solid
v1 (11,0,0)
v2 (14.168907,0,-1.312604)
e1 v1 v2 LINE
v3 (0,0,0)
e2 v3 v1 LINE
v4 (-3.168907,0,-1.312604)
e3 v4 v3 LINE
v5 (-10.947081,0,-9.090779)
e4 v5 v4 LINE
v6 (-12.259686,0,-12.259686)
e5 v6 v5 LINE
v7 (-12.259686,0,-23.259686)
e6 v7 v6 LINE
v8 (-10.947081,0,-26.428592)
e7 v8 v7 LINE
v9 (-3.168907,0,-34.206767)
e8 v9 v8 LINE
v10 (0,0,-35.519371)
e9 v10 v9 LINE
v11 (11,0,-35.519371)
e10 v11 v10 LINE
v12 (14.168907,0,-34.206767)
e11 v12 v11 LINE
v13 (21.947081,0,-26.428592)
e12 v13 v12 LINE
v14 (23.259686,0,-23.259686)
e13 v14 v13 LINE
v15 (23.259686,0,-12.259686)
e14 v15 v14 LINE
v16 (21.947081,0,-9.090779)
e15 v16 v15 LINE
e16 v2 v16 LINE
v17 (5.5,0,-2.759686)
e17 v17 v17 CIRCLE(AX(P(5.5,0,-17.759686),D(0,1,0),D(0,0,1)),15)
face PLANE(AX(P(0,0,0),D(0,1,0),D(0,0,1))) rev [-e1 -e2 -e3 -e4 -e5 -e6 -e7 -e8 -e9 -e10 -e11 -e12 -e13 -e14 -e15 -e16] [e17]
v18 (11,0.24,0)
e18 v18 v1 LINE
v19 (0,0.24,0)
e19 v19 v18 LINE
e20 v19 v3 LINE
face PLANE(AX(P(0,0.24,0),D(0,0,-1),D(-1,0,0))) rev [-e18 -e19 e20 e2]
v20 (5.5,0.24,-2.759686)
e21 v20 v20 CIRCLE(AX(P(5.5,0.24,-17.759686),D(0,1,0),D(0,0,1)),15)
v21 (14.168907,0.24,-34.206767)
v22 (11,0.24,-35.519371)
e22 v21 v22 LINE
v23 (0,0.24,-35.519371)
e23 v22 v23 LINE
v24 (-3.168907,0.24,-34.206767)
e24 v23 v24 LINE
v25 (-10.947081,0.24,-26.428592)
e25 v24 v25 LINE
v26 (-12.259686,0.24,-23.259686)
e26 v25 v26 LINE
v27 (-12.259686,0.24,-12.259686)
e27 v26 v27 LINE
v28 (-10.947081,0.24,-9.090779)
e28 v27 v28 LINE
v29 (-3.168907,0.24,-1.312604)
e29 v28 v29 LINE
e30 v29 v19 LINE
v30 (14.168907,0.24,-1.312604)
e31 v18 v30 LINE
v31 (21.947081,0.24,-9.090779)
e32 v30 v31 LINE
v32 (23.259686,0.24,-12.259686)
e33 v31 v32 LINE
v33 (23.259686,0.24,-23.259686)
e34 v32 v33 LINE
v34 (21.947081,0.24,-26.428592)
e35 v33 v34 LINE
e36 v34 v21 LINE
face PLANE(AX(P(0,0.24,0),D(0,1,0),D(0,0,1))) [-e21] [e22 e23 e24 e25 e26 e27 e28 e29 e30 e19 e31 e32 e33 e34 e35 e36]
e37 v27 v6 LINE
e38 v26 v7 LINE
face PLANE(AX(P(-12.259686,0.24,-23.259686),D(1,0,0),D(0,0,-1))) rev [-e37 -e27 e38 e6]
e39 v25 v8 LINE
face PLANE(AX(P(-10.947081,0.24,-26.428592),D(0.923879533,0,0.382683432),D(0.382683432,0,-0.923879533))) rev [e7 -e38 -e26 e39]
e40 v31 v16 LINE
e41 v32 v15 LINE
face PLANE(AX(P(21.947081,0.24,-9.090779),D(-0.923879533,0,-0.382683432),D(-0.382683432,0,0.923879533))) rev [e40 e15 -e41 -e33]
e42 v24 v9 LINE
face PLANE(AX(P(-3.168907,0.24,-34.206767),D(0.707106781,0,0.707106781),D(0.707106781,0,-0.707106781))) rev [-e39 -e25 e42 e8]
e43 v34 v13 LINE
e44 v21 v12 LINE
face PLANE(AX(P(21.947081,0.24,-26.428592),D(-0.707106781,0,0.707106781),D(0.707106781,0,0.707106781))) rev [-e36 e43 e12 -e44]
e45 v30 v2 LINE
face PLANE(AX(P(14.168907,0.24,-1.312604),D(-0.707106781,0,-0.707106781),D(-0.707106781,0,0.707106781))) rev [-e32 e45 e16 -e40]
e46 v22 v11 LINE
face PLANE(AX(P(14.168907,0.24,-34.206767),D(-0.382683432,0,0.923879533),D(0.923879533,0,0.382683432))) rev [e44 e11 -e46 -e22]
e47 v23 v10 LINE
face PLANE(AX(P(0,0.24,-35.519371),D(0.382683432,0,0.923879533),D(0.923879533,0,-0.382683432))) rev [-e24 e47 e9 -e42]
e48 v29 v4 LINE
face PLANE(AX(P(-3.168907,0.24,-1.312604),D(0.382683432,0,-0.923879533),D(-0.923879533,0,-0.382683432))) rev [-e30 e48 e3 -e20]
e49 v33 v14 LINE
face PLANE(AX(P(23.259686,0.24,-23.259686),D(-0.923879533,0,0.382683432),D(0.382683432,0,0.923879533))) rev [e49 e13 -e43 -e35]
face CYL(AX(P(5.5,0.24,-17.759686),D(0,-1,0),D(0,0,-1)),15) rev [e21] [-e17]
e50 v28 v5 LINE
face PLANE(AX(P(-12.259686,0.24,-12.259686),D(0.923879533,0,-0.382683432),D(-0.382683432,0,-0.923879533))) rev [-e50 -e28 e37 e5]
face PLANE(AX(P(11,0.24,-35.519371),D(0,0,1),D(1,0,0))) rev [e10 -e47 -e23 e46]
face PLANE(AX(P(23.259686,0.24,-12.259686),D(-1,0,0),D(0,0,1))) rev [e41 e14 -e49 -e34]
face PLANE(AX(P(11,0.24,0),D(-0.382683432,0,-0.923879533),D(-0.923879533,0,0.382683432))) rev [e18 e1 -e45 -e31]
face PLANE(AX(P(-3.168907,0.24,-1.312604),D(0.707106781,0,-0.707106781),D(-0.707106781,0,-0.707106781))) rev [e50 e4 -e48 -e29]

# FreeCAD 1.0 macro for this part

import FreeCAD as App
import Part
import Sketcher
Q = App.Units.Quantity

doc = App.newDocument("Part")
body = doc.addObject("PartDesign::Body", "Body")

# Sketch on XZ plane
sketch1 = body.newObject("Sketcher::SketchObject", "Sketch")
sketch1.AttachmentSupport = (doc.getObject("XZ_Plane"), [""])
sketch1.MapMode = "FlatFace"
sketch1.addGeometry(Part.LineSegment(App.Vector(0, 0, 0), App.Vector(11, 0, 0)), False)
sketch1.addGeometry(Part.LineSegment(App.Vector(11, 0, 0), App.Vector(14.168907, -1.312604, 0)), False)
sketch1.addGeometry(Part.LineSegment(App.Vector(14.168907, -1.312604, 0), App.Vector(21.947081, -9.090779, 0)), False)
sketch1.addGeometry(Part.LineSegment(App.Vector(21.947081, -9.090779, 0), App.Vector(23.259686, -12.259686, 0)), False)
sketch1.addGeometry(Part.LineSegment(App.Vector(23.259686, -12.259686, 0), App.Vector(23.259686, -23.259686, 0)), False)
sketch1.addGeometry(Part.LineSegment(App.Vector(23.259686, -23.259686, 0), App.Vector(21.947081, -26.428592, 0)), False)
sketch1.addGeometry(Part.LineSegment(App.Vector(21.947081, -26.428592, 0), App.Vector(14.168907, -34.206767, 0)), False)
sketch1.addGeometry(Part.LineSegment(App.Vector(14.168907, -34.206767, 0), App.Vector(11, -35.519371, 0)), False)
sketch1.addGeometry(Part.LineSegment(App.Vector(11, -35.519371, 0), App.Vector(0, -35.519371, 0)), False)
sketch1.addGeometry(Part.LineSegment(App.Vector(0, -35.519371, 0), App.Vector(-3.168907, -34.206767, 0)), False)
sketch1.addGeometry(Part.LineSegment(App.Vector(-3.168907, -34.206767, 0), App.Vector(-10.947081, -26.428592, 0)), False)
sketch1.addGeometry(Part.LineSegment(App.Vector(-10.947081, -26.428592, 0), App.Vector(-12.259686, -23.259686, 0)), False)
sketch1.addGeometry(Part.LineSegment(App.Vector(-12.259686, -23.259686, 0), App.Vector(-12.259686, -12.259686, 0)), False)
sketch1.addGeometry(Part.LineSegment(App.Vector(-12.259686, -12.259686, 0), App.Vector(-10.947081, -9.090779, 0)), False)
sketch1.addGeometry(Part.LineSegment(App.Vector(-10.947081, -9.090779, 0), App.Vector(-3.168907, -1.312604, 0)), False)
sketch1.addGeometry(Part.LineSegment(App.Vector(-3.168907, -1.312604, 0), App.Vector(0, 0, 0)), False)
sketch1.addGeometry(Part.Circle(App.Vector(5.5, -17.759686, 0), App.Vector(0, 0, 1), 15), False)
sketch1.addConstraint(Sketcher.Constraint("Coincident", 0, 2, 1, 1))
sketch1.addConstraint(Sketcher.Constraint("Coincident", 1, 2, 2, 1))
sketch1.addConstraint(Sketcher.Constraint("Coincident", 2, 2, 3, 1))
sketch1.addConstraint(Sketcher.Constraint("Coincident", 3, 2, 4, 1))
sketch1.addConstraint(Sketcher.Constraint("Coincident", 4, 2, 5, 1))
sketch1.addConstraint(Sketcher.Constraint("Coincident", 5, 2, 6, 1))
sketch1.addConstraint(Sketcher.Constraint("Coincident", 6, 2, 7, 1))
sketch1.addConstraint(Sketcher.Constraint("Coincident", 7, 2, 8, 1))
sketch1.addConstraint(Sketcher.Constraint("Coincident", 8, 2, 9, 1))
sketch1.addConstraint(Sketcher.Constraint("Coincident", 9, 2, 10, 1))
sketch1.addConstraint(Sketcher.Constraint("Coincident", 10, 2, 11, 1))
sketch1.addConstraint(Sketcher.Constraint("Coincident", 11, 2, 12, 1))
sketch1.addConstraint(Sketcher.Constraint("Coincident", 12, 2, 13, 1))
sketch1.addConstraint(Sketcher.Constraint("Coincident", 13, 2, 14, 1))
sketch1.addConstraint(Sketcher.Constraint("Coincident", 14, 2, 15, 1))
sketch1.addConstraint(Sketcher.Constraint("Coincident", 15, 2, 0, 1))
sketch1.addConstraint(Sketcher.Constraint("Horizontal", 0))
sketch1.addConstraint(Sketcher.Constraint("Vertical", 4))
sketch1.addConstraint(Sketcher.Constraint("Horizontal", 8))
sketch1.addConstraint(Sketcher.Constraint("Vertical", 12))
sketch1.addConstraint(Sketcher.Constraint("Coincident", 15, 2, -1, 1))
sketch1.addConstraint(Sketcher.Constraint("PointOnObject", 8, 2, -2))
sketch1.addConstraint(Sketcher.Constraint("Perpendicular", 1, 5))
sketch1.addConstraint(Sketcher.Constraint("Perpendicular", 2, 6))
sketch1.addConstraint(Sketcher.Constraint("Perpendicular", 3, 7))
sketch1.addConstraint(Sketcher.Constraint("Perpendicular", 5, 9))
sketch1.addConstraint(Sketcher.Constraint("Perpendicular", 6, 10))
sketch1.addConstraint(Sketcher.Constraint("Perpendicular", 7, 11))
sketch1.addConstraint(Sketcher.Constraint("Perpendicular", 9, 13))
sketch1.addConstraint(Sketcher.Constraint("Perpendicular", 10, 14))
sketch1.addConstraint(Sketcher.Constraint("Perpendicular", 11, 15))
sketch1.addConstraint(Sketcher.Constraint("Horizontal", 6, 2, 9, 2))
sketch1.addConstraint(Sketcher.Constraint("Horizontal", 5, 2, 10, 2))
sketch1.addConstraint(Sketcher.Constraint("Horizontal", 4, 2, 11, 2))
sketch1.addConstraint(Sketcher.Constraint("Horizontal", 3, 2, 12, 2))
sketch1.addConstraint(Sketcher.Constraint("Horizontal", 2, 2, 13, 2))
sketch1.addConstraint(Sketcher.Constraint("Horizontal", 1, 2, 14, 2))
sketch1.addConstraint(Sketcher.Constraint("Vertical", 2, 2, 5, 2))
sketch1.addConstraint(Sketcher.Constraint("Vertical", 1, 2, 6, 2))
sketch1.addConstraint(Sketcher.Constraint("Vertical", 0, 2, 7, 2))
sketch1.addConstraint(Sketcher.Constraint("Vertical", 10, 2, 13, 2))
sketch1.addConstraint(Sketcher.Constraint("Equal", 8, 4))
sketch1.addConstraint(Sketcher.Constraint("Equal", 1, 3))
sketch1.addConstraint(Sketcher.Constraint("Diameter", 16, 30.0))
sketch1.addConstraint(Sketcher.Constraint("DistanceX", 0, 1, 0, 2, 11.0))
sketch1.addConstraint(Sketcher.Constraint("Distance", 2, 11.0))
sketch1.addConstraint(Sketcher.Constraint("Angle", 1, Q("-22.5 deg")))
sketch1.addConstraint(Sketcher.Constraint("DistanceX", -1, 1, 16, 3, 5.5))
sketch1.addConstraint(Sketcher.Constraint("DistanceY", 16, 3, 3, 2, 5.5))
sketch1.addConstraint(Sketcher.Constraint("Distance", 1, 3.43))
pad1 = body.newObject("PartDesign::Pad", "Pad")
pad1.Profile = sketch1
pad1.Length = 0.24
pad1.Reversed = True

doc.recompute()
